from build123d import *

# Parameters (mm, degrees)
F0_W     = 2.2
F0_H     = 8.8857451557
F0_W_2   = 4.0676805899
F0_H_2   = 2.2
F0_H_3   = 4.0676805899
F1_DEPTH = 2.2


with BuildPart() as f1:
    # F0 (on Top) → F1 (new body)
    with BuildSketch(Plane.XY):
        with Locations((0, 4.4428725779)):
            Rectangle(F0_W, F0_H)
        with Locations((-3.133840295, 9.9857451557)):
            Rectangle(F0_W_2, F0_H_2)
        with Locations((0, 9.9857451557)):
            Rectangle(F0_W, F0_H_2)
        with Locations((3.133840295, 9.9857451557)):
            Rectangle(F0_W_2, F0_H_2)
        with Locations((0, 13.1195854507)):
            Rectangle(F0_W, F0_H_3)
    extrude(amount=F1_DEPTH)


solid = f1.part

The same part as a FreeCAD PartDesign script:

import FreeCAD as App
import Part
import Sketcher

V = App.Vector

doc = App.newDocument("Part")
body = doc.addObject("PartDesign::Body", "Body")

sketch1 = doc.addObject("Sketcher::SketchObject", "Sketch")
body.addObject(sketch1)
sketch1.AttachmentSupport = (doc.XY_Plane, [""])
sketch1.MapMode = "FlatFace"
sketch1.addGeometry(Part.LineSegment(V(-1.1, 8.9, 0), V(-1.1, 0, 0)), False)
sketch1.addGeometry(Part.LineSegment(V(-1.1, 0, 0), V(1.1, 0, 0)), False)
sketch1.addGeometry(Part.LineSegment(V(1.1, 0, 0), V(1.1, 8.9, 0)), False)
sketch1.addGeometry(Part.LineSegment(V(1.1, 8.9, 0), V(5.2, 8.9, 0)), False)
sketch1.addGeometry(Part.LineSegment(V(5.2, 8.9, 0), V(5.2, 11.1, 0)), False)
sketch1.addGeometry(Part.LineSegment(V(5.2, 11.1, 0), V(1.1, 11.1, 0)), False)
sketch1.addGeometry(Part.LineSegment(V(1.1, 11.1, 0), V(1.1, 15.2, 0)), False)
sketch1.addGeometry(Part.LineSegment(V(1.1, 15.2, 0), V(-1.1, 15.2, 0)), False)
sketch1.addGeometry(Part.LineSegment(V(-1.1, 15.2, 0), V(-1.1, 11.1, 0)), False)
sketch1.addGeometry(Part.LineSegment(V(-1.1, 11.1, 0), V(-5.2, 11.1, 0)), False)
sketch1.addGeometry(Part.LineSegment(V(-5.2, 11.1, 0), V(-5.2, 8.9, 0)), False)
sketch1.addGeometry(Part.LineSegment(V(-5.2, 8.9, 0), V(-1.1, 8.9, 0)), False)
sketch1.addConstraint(Sketcher.Constraint("Coincident", 0, 2, 1, 1))
sketch1.addConstraint(Sketcher.Constraint("Coincident", 1, 2, 2, 1))
sketch1.addConstraint(Sketcher.Constraint("Coincident", 2, 2, 3, 1))
sketch1.addConstraint(Sketcher.Constraint("Coincident", 3, 2, 4, 1))
sketch1.addConstraint(Sketcher.Constraint("Coincident", 4, 2, 5, 1))
sketch1.addConstraint(Sketcher.Constraint("Coincident", 5, 2, 6, 1))
sketch1.addConstraint(Sketcher.Constraint("Coincident", 6, 2, 7, 1))
sketch1.addConstraint(Sketcher.Constraint("Coincident", 7, 2, 8, 1))
sketch1.addConstraint(Sketcher.Constraint("Coincident", 8, 2, 9, 1))
sketch1.addConstraint(Sketcher.Constraint("Coincident", 9, 2, 10, 1))
sketch1.addConstraint(Sketcher.Constraint("Coincident", 10, 2, 11, 1))
sketch1.addConstraint(Sketcher.Constraint("Coincident", 11, 2, 0, 1))
sketch1.addConstraint(Sketcher.Constraint("Vertical", 0))
sketch1.addConstraint(Sketcher.Constraint("Horizontal", 1))
sketch1.addConstraint(Sketcher.Constraint("Vertical", 2))
sketch1.addConstraint(Sketcher.Constraint("Horizontal", 3))
sketch1.addConstraint(Sketcher.Constraint("Vertical", 4))
sketch1.addConstraint(Sketcher.Constraint("Horizontal", 5))
sketch1.addConstraint(Sketcher.Constraint("Vertical", 6))
sketch1.addConstraint(Sketcher.Constraint("Horizontal", 7))
sketch1.addConstraint(Sketcher.Constraint("Vertical", 8))
sketch1.addConstraint(Sketcher.Constraint("Horizontal", 9))
sketch1.addConstraint(Sketcher.Constraint("Vertical", 10))
sketch1.addConstraint(Sketcher.Constraint("Horizontal", 11))
sketch1.addConstraint(Sketcher.Constraint("Symmetric", 0, 2, 1, 2, -1, 1))
sketch1.addConstraint(Sketcher.Constraint("Symmetric", 5, 2, 8, 2, -2))
sketch1.addConstraint(Sketcher.Constraint("Symmetric", 3, 2, 10, 2, -2))
sketch1.addConstraint(Sketcher.Constraint("Vertical", 2, 2, 5, 2))
sketch1.addConstraint(Sketcher.Constraint("Equal", 7, 4))
sketch1.addConstraint(Sketcher.Constraint("Equal", 11, 6))
sketch1.addConstraint(Sketcher.Constraint("DistanceX", 1, 1, 1, 2, 2.2))
sketch1.addConstraint(Sketcher.Constraint("DistanceX", 3, 1, 3, 2, 4.067681))
sketch1.addConstraint(Sketcher.Constraint("DistanceY", 0, 2, 0, 1, 8.885745))
pad1 = doc.addObject("PartDesign::Pad", "Pad")
body.addObject(pad1)
pad1.Profile = sketch1
pad1.Length = 2.2

doc.recompute()
